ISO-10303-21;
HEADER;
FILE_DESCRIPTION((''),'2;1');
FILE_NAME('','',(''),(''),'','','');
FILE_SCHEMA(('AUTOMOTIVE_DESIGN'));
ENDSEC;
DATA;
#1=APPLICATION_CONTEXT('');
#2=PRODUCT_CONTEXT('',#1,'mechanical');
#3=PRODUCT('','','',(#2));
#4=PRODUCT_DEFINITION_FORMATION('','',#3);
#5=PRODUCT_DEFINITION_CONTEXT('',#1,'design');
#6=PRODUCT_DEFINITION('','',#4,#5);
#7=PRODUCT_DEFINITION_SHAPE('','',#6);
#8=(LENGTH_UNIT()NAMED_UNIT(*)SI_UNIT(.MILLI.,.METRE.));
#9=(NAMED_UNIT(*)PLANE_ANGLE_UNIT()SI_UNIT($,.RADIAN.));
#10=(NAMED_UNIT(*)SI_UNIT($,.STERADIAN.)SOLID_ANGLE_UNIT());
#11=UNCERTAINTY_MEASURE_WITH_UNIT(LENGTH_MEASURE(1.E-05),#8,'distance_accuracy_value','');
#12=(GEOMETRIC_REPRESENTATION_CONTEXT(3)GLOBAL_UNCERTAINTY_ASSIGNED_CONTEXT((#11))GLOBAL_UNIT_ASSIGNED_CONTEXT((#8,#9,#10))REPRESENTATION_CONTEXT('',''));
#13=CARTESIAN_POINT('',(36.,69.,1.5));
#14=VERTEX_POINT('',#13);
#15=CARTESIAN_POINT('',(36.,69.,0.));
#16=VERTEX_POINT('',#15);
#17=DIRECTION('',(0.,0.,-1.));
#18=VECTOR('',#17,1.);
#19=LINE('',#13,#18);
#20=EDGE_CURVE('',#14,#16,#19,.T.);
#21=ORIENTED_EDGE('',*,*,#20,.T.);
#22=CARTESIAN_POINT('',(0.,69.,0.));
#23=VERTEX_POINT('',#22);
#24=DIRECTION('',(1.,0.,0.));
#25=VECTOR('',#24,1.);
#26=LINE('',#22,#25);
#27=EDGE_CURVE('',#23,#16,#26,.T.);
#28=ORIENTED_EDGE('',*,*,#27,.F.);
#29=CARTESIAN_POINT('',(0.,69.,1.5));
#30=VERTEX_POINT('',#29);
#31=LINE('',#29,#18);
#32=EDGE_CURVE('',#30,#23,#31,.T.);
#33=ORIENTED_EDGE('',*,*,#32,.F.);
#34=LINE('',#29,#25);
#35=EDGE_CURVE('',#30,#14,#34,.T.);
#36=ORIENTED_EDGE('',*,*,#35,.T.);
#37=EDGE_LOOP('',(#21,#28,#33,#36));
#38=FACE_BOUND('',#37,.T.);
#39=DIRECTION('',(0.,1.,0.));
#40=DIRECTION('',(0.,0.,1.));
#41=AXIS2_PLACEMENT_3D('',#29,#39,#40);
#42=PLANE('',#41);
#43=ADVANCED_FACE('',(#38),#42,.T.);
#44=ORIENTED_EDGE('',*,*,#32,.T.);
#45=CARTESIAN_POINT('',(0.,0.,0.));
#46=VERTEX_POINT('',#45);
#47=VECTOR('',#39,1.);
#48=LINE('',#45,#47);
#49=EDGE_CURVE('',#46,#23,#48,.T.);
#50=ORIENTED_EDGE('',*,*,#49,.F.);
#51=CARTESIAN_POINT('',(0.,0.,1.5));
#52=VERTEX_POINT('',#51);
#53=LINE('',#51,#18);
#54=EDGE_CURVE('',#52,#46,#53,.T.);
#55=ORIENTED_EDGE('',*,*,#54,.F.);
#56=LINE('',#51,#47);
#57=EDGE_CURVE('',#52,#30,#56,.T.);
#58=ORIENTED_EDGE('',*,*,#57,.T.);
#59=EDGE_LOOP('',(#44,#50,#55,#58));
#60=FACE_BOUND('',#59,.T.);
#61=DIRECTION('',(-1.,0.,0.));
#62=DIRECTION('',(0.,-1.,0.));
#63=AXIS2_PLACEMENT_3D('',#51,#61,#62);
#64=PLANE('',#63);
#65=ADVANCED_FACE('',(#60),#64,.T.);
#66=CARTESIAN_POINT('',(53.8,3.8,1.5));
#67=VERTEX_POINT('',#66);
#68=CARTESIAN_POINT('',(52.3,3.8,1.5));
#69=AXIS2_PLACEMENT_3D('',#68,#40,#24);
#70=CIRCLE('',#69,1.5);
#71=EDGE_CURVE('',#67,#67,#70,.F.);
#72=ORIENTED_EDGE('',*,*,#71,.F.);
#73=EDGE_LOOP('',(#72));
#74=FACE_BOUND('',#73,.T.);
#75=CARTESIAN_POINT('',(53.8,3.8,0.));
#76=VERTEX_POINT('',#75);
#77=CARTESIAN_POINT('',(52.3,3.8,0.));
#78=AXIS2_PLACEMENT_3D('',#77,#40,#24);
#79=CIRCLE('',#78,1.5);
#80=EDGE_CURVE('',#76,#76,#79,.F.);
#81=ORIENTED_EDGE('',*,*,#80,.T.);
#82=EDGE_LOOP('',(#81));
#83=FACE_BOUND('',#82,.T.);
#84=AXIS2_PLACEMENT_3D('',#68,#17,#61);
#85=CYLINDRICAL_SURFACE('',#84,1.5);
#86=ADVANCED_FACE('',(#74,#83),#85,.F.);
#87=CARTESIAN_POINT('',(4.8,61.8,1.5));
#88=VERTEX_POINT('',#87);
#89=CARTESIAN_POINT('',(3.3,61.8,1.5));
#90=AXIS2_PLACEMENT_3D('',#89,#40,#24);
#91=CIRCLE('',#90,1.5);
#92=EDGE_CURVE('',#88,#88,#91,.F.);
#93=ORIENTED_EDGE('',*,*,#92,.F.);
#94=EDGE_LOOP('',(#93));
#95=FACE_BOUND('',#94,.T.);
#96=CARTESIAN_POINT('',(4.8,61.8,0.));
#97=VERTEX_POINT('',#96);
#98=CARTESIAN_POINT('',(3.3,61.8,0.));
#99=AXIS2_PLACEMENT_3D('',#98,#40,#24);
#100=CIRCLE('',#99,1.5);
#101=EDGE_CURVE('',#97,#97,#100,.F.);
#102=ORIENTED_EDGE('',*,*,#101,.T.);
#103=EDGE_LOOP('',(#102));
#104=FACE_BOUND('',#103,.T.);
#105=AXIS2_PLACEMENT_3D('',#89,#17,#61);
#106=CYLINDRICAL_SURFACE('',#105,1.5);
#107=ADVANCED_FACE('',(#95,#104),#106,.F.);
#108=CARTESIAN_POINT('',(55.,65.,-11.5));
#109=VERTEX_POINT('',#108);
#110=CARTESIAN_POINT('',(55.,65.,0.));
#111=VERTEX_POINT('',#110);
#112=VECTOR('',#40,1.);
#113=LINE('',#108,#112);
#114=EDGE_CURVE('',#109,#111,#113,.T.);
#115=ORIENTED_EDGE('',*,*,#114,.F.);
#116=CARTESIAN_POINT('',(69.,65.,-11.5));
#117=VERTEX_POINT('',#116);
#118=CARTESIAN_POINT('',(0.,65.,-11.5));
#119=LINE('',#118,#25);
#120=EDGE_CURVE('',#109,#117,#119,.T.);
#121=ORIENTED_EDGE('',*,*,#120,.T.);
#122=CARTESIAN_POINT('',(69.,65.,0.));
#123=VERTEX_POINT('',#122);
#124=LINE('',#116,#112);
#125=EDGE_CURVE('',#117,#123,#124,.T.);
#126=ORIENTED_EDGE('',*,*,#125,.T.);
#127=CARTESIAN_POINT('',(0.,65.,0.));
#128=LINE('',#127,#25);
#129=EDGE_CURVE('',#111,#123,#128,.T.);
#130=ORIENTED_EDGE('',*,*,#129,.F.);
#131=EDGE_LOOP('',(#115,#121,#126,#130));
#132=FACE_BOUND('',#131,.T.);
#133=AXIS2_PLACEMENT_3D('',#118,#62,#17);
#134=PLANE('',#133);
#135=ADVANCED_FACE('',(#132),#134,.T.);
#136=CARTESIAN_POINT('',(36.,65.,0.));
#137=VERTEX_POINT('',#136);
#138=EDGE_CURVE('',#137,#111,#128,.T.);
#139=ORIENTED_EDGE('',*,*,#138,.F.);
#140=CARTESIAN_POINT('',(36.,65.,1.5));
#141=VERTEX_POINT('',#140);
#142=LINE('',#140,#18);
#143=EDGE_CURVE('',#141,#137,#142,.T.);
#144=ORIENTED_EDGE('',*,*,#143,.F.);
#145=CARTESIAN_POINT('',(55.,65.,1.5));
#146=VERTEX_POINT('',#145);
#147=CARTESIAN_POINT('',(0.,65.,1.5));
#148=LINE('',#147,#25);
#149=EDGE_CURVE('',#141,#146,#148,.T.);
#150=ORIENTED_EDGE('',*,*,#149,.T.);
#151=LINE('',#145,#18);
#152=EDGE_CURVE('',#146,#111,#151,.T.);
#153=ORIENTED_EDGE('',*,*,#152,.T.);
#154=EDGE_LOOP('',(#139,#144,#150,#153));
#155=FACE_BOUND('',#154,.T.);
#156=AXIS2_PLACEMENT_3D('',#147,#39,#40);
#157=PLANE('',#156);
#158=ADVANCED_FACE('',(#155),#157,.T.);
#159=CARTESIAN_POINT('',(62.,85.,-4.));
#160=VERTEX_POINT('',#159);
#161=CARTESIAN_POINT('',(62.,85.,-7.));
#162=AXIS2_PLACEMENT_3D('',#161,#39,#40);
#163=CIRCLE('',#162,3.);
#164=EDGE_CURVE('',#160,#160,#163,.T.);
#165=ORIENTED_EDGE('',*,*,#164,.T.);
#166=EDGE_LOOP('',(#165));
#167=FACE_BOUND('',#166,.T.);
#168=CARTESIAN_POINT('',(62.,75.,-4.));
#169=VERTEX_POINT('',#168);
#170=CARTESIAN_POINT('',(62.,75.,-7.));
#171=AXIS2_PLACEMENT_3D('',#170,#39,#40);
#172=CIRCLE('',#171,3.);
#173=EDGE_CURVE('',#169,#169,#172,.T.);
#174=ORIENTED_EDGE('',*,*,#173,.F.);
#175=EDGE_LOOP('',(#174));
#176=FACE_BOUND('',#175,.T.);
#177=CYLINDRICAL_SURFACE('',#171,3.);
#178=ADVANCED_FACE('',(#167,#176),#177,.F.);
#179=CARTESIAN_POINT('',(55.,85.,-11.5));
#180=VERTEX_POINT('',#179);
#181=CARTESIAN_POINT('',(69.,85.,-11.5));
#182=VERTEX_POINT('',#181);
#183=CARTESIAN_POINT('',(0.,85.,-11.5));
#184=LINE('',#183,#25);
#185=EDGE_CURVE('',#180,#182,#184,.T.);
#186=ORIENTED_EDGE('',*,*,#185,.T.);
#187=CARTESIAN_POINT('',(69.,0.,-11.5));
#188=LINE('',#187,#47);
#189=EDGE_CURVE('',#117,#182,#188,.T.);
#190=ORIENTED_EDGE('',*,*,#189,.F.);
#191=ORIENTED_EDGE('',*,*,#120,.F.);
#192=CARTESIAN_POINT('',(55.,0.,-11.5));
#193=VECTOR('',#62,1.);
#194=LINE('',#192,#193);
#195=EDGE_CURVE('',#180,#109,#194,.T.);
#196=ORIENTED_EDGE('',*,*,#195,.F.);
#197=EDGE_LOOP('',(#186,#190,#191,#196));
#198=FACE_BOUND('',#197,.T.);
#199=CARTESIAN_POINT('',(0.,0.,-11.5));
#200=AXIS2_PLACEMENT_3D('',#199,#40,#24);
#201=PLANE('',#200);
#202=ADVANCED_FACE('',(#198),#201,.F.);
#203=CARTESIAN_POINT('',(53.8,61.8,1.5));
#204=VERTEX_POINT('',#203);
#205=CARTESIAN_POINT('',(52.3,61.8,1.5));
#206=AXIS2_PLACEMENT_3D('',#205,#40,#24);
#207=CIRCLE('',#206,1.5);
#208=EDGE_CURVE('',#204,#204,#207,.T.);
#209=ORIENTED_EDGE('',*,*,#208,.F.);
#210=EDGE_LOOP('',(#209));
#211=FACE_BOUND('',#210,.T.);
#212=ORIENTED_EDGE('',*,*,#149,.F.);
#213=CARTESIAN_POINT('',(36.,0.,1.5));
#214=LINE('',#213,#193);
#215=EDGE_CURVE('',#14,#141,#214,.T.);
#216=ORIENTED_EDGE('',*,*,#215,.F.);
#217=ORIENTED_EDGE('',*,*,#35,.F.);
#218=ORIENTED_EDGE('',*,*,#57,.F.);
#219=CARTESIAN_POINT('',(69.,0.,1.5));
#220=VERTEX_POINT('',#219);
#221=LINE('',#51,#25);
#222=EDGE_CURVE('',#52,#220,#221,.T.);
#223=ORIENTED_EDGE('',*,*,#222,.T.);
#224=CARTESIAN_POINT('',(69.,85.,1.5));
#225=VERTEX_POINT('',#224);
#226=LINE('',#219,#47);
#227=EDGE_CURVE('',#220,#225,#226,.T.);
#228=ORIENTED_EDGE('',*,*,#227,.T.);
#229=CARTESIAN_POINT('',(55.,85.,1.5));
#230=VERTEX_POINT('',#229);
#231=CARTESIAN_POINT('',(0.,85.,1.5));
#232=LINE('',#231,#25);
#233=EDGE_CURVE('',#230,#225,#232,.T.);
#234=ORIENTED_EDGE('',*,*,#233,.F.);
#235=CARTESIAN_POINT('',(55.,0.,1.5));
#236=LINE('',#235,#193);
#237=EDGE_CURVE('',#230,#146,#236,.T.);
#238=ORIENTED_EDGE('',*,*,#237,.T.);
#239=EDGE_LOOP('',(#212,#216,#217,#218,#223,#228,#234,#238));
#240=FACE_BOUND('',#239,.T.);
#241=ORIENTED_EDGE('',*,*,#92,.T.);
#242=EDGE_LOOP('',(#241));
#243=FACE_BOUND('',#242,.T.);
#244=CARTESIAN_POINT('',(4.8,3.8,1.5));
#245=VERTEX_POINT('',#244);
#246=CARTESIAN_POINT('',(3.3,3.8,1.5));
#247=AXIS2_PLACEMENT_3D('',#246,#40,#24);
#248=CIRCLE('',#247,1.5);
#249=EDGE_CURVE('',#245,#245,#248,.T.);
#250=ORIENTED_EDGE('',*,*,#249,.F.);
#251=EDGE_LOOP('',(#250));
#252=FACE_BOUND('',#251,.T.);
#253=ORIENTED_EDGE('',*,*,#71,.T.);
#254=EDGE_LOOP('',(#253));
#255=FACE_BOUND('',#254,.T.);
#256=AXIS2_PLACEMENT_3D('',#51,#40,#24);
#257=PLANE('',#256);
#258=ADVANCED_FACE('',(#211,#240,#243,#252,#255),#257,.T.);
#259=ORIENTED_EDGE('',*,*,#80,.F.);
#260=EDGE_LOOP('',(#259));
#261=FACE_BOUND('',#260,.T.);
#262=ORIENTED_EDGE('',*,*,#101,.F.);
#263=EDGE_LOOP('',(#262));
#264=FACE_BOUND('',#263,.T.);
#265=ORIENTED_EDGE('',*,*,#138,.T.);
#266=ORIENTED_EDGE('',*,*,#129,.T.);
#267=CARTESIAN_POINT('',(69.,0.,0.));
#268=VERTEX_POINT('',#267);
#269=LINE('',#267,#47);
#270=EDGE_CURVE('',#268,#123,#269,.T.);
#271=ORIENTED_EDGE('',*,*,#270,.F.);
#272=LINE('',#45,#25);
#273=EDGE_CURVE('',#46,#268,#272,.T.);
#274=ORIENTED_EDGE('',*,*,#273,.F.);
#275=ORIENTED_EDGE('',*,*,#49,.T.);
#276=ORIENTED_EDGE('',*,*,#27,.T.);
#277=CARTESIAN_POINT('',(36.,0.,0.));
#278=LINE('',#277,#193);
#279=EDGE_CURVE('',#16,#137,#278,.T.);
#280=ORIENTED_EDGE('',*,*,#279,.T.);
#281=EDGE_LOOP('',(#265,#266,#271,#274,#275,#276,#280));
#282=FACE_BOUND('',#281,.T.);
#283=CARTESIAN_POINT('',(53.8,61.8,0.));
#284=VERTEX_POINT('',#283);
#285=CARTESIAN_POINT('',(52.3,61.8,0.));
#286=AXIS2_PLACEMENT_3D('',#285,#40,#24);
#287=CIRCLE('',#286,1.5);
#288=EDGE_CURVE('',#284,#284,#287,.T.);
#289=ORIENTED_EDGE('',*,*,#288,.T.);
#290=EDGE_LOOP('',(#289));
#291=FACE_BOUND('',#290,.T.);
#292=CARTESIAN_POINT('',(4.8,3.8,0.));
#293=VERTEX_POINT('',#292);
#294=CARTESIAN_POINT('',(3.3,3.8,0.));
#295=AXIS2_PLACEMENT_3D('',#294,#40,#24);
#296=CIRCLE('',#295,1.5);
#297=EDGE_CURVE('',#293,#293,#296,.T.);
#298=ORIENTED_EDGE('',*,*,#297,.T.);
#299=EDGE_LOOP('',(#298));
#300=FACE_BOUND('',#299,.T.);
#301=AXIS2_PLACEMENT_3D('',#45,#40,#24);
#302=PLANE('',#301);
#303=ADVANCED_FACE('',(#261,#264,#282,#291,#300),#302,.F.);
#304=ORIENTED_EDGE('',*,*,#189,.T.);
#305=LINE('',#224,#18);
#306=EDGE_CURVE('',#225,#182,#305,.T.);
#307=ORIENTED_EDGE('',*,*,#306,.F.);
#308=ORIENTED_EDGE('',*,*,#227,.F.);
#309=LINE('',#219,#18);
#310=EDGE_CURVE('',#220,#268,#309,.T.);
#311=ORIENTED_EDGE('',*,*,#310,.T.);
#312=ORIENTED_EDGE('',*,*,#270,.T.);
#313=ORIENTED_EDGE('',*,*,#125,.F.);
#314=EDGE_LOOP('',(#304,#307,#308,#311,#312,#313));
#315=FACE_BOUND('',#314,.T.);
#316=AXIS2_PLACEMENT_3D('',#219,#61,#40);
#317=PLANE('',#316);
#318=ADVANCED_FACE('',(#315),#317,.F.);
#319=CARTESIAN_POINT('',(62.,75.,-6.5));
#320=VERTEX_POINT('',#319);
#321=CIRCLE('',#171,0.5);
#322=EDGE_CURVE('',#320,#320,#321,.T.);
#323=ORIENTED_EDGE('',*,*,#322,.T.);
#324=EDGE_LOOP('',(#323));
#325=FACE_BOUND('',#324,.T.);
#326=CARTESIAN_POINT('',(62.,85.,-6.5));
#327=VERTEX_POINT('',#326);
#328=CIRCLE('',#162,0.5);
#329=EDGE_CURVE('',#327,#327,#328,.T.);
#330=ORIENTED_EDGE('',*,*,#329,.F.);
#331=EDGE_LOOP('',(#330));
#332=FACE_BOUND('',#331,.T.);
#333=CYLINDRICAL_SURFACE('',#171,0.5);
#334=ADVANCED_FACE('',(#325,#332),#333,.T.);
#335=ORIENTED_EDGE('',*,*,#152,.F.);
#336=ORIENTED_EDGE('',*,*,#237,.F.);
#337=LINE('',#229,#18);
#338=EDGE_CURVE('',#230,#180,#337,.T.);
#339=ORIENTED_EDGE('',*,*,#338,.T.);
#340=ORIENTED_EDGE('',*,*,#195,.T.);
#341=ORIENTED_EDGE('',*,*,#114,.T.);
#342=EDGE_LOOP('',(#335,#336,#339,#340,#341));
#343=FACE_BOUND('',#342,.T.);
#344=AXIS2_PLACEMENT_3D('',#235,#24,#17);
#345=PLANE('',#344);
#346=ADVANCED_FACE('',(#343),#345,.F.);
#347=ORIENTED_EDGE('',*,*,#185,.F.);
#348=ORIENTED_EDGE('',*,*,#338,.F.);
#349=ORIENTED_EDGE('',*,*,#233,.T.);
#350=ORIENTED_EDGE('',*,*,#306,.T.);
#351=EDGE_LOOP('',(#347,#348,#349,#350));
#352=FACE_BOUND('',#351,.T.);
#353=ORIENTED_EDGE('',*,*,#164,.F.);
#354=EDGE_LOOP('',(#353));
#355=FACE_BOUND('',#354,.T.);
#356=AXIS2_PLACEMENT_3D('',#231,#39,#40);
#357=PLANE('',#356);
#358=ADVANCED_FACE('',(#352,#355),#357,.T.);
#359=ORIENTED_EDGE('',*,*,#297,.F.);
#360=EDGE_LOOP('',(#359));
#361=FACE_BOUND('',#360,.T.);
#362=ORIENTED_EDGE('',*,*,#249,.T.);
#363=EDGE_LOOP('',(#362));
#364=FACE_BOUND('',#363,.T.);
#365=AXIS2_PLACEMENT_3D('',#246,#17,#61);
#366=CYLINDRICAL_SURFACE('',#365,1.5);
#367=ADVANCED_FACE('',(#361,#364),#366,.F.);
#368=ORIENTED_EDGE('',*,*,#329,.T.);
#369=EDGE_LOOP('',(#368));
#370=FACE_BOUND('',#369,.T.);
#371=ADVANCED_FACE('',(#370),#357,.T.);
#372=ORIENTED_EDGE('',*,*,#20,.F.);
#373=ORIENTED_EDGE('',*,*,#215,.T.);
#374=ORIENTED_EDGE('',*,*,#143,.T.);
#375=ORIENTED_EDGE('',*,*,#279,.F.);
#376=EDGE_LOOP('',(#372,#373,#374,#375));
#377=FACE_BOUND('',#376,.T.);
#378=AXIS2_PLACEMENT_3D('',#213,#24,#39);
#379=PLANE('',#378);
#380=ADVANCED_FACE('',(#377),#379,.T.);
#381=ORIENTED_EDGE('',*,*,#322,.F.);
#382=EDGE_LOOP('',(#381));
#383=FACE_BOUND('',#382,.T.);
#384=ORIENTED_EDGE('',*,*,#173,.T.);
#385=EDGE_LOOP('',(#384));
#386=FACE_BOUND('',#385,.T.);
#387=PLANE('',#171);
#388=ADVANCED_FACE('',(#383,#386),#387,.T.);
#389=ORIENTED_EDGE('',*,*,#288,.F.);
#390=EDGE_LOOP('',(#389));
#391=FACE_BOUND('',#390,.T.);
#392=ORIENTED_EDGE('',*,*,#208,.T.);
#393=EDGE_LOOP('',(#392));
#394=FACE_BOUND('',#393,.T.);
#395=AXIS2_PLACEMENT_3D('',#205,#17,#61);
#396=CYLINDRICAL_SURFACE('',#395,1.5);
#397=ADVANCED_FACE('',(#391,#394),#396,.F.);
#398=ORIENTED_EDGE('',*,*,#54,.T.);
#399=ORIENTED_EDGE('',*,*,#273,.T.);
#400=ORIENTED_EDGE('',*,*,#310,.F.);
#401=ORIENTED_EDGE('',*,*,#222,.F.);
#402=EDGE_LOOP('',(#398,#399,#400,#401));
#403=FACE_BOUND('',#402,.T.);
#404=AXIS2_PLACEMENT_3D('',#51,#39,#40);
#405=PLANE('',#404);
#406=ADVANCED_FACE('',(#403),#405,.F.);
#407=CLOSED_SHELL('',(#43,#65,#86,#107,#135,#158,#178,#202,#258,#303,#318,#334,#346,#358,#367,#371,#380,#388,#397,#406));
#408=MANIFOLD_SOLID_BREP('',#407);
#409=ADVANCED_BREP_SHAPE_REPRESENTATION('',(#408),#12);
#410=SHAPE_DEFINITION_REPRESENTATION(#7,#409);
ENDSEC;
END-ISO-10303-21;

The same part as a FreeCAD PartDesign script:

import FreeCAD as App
import Part
import Sketcher

doc = App.newDocument("Part")
body = doc.addObject("PartDesign::Body", "Body")

# Sketch on XY plane
sketch1 = body.newObject("Sketcher::SketchObject", "Sketch")
sketch1.AttachmentSupport = (doc.getObject("XY_Plane"), [""])
sketch1.MapMode = "FlatFace"
sketch1.addGeometry([
    Part.LineSegment(App.Vector(55, 85, 0), App.Vector(55, 65, 0)),  # 0
    Part.LineSegment(App.Vector(55, 65, 0), App.Vector(36, 65, 0)),  # 1
    Part.LineSegment(App.Vector(36, 65, 0), App.Vector(36, 69, 0)),  # 2
    Part.LineSegment(App.Vector(36, 69, 0), App.Vector(0, 69, 0)),  # 3
    Part.LineSegment(App.Vector(0, 69, 0), App.Vector(0, 0, 0)),  # 4
    Part.LineSegment(App.Vector(0, 0, 0), App.Vector(69, 0, 0)),  # 5
    Part.LineSegment(App.Vector(69, 0, 0), App.Vector(69, 85, 0)),  # 6
    Part.LineSegment(App.Vector(69, 85, 0), App.Vector(55, 85, 0)),  # 7
    Part.Circle(App.Vector(3.3, 3.8, 0), App.Vector(0, 0, 1), 1.5),  # 8
    Part.Circle(App.Vector(52.3, 3.8, 0), App.Vector(0, 0, 1), 1.5),  # 9
    Part.Circle(App.Vector(3.3, 61.8, 0), App.Vector(0, 0, 1), 1.5),  # 10
    Part.Circle(App.Vector(52.3, 61.8, 0), App.Vector(0, 0, 1), 1.5),  # 11
], False)
sketch1.addConstraint([
    Sketcher.Constraint("Coincident", 0, 2, 1, 1),
    Sketcher.Constraint("Coincident", 1, 2, 2, 1),
    Sketcher.Constraint("Coincident", 2, 2, 3, 1),
    Sketcher.Constraint("Coincident", 3, 2, 4, 1),
    Sketcher.Constraint("Coincident", 4, 2, 5, 1),
    Sketcher.Constraint("Coincident", 5, 2, 6, 1),
    Sketcher.Constraint("Coincident", 6, 2, 7, 1),
    Sketcher.Constraint("Coincident", 7, 2, 0, 1),
    Sketcher.Constraint("Vertical", 0),
    Sketcher.Constraint("Horizontal", 1),
    Sketcher.Constraint("Vertical", 2),
    Sketcher.Constraint("Horizontal", 3),
    Sketcher.Constraint("Vertical", 4),
    Sketcher.Constraint("Horizontal", 5),
    Sketcher.Constraint("Vertical", 6),
    Sketcher.Constraint("Horizontal", 7),
    Sketcher.Constraint("Coincident", 4, 2, -1, 1),
    Sketcher.Constraint("Equal", 8, 9),
    Sketcher.Constraint("Equal", 9, 10),
    Sketcher.Constraint("Equal", 10, 11),
    Sketcher.Constraint("Horizontal", 8, 3, 9, 3),
    Sketcher.Constraint("Horizontal", 10, 3, 11, 3),
    Sketcher.Constraint("Vertical", 8, 3, 10, 3),
    Sketcher.Constraint("Vertical", 9, 3, 11, 3),
    Sketcher.Constraint("Equal", 5, 4),
    Sketcher.Constraint("Diameter", 8, 3.0),
    Sketcher.Constraint("DistanceX", 1, 2, 1, 1, 19.0),
    Sketcher.Constraint("DistanceX", 3, 2, 3, 1, 36.0),
    Sketcher.Constraint("DistanceX", 5, 1, 5, 2, 69.0),
    Sketcher.Constraint("DistanceY", 0, 2, 0, 1, 20.0),
    Sketcher.Constraint("DistanceY", 2, 1, 2, 2, 4.0),
    Sketcher.Constraint("DistanceX", 8, 3, 9, 3, 49.0),
    Sketcher.Constraint("DistanceY", 8, 3, 10, 3, 58.0),
    Sketcher.Constraint("DistanceX", -1, 1, 8, 3, 3.3),
    Sketcher.Constraint("DistanceY", -1, 1, 8, 3, 3.8),
])
pad1 = body.newObject("PartDesign::Pad", "Pad")
pad1.Profile = sketch1
pad1.Length = 1.5

# Sketch on XY plane
sketch2 = body.newObject("Sketcher::SketchObject", "Sketch001")
sketch2.AttachmentSupport = (doc.getObject("XY_Plane"), [""])
sketch2.MapMode = "FlatFace"
sketch2.addGeometry([
    Part.LineSegment(App.Vector(55, 85, 0), App.Vector(55, 65, 0)),
    Part.LineSegment(App.Vector(55, 65, 0), App.Vector(69, 65, 0)),
    Part.LineSegment(App.Vector(69, 65, 0), App.Vector(69, 85, 0)),
    Part.LineSegment(App.Vector(69, 85, 0), App.Vector(55, 85, 0)),
], False)
sketch2.addConstraint([
    Sketcher.Constraint("Coincident", 0, 2, 1, 1),
    Sketcher.Constraint("Coincident", 1, 2, 2, 1),
    Sketcher.Constraint("Coincident", 2, 2, 3, 1),
    Sketcher.Constraint("Coincident", 3, 2, 0, 1),
    Sketcher.Constraint("Vertical", 0),
    Sketcher.Constraint("Horizontal", 1),
    Sketcher.Constraint("Vertical", 2),
    Sketcher.Constraint("Horizontal", 3),
    Sketcher.Constraint("DistanceX", 1, 1, 1, 2, 14.0),
    Sketcher.Constraint("DistanceY", 0, 2, 0, 1, 20.0),
    Sketcher.Constraint("DistanceX", -1, 1, 0, 2, 55.0),
    Sketcher.Constraint("DistanceY", -1, 1, 0, 2, 65.0),
])
pad2 = body.newObject("PartDesign::Pad", "Pad001")
pad2.Profile = sketch2
pad2.Length = 11.5
pad2.Reversed = True

# Sketch on XZ plane
sketch3 = body.newObject("Sketcher::SketchObject", "Sketch002")
sketch3.AttachmentSupport = (doc.getObject("XZ_Plane"), [""])
sketch3.MapMode = "FlatFace"
sketch3.AttachmentOffset = App.Placement(App.Vector(0, 0, -85), App.Rotation())
sketch3.addGeometry([
    Part.Circle(App.Vector(62, -7, 0), App.Vector(0, 0, 1), 3),
    Part.Circle(App.Vector(62, -7, 0), App.Vector(0, 0, 1), 0.5),
], False)
sketch3.addConstraint([
    Sketcher.Constraint("Coincident", 1, 3, 0, 3),
    Sketcher.Constraint("Diameter", 0, 6.0),
    Sketcher.Constraint("Diameter", 1, 1.0),
    Sketcher.Constraint("DistanceX", -1, 1, 0, 3, 62.0),
    Sketcher.Constraint("DistanceY", 0, 3, -1, 1, 7.0),
])
pocket1 = body.newObject("PartDesign::Pocket", "Pocket")
pocket1.Profile = sketch3
pocket1.Length = 10
pocket1.Reversed = True

doc.recompute()
